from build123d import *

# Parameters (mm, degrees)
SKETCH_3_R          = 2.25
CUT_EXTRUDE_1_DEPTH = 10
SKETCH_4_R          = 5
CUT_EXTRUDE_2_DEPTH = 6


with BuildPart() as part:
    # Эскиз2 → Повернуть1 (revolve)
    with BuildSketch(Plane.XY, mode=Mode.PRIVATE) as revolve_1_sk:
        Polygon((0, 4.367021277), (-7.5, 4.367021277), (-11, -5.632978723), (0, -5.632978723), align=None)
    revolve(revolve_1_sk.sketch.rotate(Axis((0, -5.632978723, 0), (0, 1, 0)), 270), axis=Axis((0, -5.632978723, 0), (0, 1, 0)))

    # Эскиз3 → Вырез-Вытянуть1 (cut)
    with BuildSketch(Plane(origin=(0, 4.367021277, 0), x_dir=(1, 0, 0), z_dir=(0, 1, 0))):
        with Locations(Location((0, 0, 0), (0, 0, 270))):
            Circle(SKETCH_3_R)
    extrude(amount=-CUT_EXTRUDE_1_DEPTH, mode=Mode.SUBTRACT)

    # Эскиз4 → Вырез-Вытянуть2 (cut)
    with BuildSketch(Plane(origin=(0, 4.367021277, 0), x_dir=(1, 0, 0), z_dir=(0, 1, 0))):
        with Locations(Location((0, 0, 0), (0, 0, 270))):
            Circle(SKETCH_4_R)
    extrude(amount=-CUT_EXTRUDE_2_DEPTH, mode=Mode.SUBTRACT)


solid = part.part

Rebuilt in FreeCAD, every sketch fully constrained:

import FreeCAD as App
import Part
import Sketcher
Q = App.Units.Quantity


def add_polygon(sketch, points):
    """Adds a closed chain of lines whose ends are joined by coincident constraints."""
    first, n = sketch.GeometryCount, len(points)
    for a, b in zip(points, points[1:] + points[:1]):
        sketch.addGeometry(Part.LineSegment(App.Vector(*a, 0), App.Vector(*b, 0)), False)
    for i in range(n):
        sketch.addConstraint(Sketcher.Constraint("Coincident", first + i, 2, first + (i + 1) % n, 1))

doc = App.newDocument("Part")
body = doc.addObject("PartDesign::Body", "Body")

# Sketch on XY plane
sketch1 = body.newObject("Sketcher::SketchObject", "Sketch")
sketch1.AttachmentSupport = (doc.getObject("XY_Plane"), [""])
sketch1.MapMode = "FlatFace"
add_polygon(sketch1, [(0, 4.367021), (-7.5, 4.367021), (-11, -5.632979), (0, -5.632979)])  # lines 0-3
sketch1.addConstraint(Sketcher.Constraint("Horizontal", 0))
sketch1.addConstraint(Sketcher.Constraint("Horizontal", 2))
sketch1.addConstraint(Sketcher.Constraint("Vertical", 3))
sketch1.addConstraint(Sketcher.Constraint("PointOnObject", 2, 2, -2))
sketch1.addConstraint(Sketcher.Constraint("DistanceX", 2, 1, 2, 2, Q("11 mm")))
sketch1.addConstraint(Sketcher.Constraint("DistanceY", 3, 1, 3, 2, Q("10 mm")))
sketch1.addConstraint(Sketcher.Constraint("DistanceX", 0, 2, 0, 1, Q("7.5 mm")))
sketch1.addConstraint(Sketcher.Constraint("DistanceY", -1, 1, 0, 2, Q("4.367021 mm")))
revolution = body.newObject("PartDesign::Revolution", "Revolution")
revolution.Profile = sketch1
revolution.ReferenceAxis = (sketch1, ["V_Axis"])
revolution.Angle = 360

# Sketch on XZ plane
sketch2 = body.newObject("Sketcher::SketchObject", "Sketch001")
sketch2.AttachmentSupport = (doc.getObject("XZ_Plane"), [""])
sketch2.MapMode = "FlatFace"
sketch2.AttachmentOffset = App.Placement(App.Vector(0, 0, -4.367021), App.Rotation())
sketch2.addGeometry(Part.Circle(App.Vector(0, 0, 0), App.Vector(0, 0, 1), 2.25), False)
sketch2.addConstraint(Sketcher.Constraint("Coincident", 0, 3, -1, 1))
sketch2.addConstraint(Sketcher.Constraint("Diameter", 0, Q("4.5 mm")))
pocket1 = body.newObject("PartDesign::Pocket", "Pocket")
pocket1.Profile = sketch2
pocket1.Length = 10
pocket1.Reversed = True

# Sketch on XZ plane
sketch3 = body.newObject("Sketcher::SketchObject", "Sketch002")
sketch3.AttachmentSupport = (doc.getObject("XZ_Plane"), [""])
sketch3.MapMode = "FlatFace"
sketch3.AttachmentOffset = App.Placement(App.Vector(0, 0, -4.367021), App.Rotation())
sketch3.addGeometry(Part.Circle(App.Vector(0, 0, 0), App.Vector(0, 0, 1), 5), False)
sketch3.addConstraint(Sketcher.Constraint("Coincident", 0, 3, -1, 1))
sketch3.addConstraint(Sketcher.Constraint("Diameter", 0, Q("10 mm")))
pocket2 = body.newObject("PartDesign::Pocket", "Pocket001")
pocket2.Profile = sketch3
pocket2.Length = 6
pocket2.Reversed = True

doc.recompute()
